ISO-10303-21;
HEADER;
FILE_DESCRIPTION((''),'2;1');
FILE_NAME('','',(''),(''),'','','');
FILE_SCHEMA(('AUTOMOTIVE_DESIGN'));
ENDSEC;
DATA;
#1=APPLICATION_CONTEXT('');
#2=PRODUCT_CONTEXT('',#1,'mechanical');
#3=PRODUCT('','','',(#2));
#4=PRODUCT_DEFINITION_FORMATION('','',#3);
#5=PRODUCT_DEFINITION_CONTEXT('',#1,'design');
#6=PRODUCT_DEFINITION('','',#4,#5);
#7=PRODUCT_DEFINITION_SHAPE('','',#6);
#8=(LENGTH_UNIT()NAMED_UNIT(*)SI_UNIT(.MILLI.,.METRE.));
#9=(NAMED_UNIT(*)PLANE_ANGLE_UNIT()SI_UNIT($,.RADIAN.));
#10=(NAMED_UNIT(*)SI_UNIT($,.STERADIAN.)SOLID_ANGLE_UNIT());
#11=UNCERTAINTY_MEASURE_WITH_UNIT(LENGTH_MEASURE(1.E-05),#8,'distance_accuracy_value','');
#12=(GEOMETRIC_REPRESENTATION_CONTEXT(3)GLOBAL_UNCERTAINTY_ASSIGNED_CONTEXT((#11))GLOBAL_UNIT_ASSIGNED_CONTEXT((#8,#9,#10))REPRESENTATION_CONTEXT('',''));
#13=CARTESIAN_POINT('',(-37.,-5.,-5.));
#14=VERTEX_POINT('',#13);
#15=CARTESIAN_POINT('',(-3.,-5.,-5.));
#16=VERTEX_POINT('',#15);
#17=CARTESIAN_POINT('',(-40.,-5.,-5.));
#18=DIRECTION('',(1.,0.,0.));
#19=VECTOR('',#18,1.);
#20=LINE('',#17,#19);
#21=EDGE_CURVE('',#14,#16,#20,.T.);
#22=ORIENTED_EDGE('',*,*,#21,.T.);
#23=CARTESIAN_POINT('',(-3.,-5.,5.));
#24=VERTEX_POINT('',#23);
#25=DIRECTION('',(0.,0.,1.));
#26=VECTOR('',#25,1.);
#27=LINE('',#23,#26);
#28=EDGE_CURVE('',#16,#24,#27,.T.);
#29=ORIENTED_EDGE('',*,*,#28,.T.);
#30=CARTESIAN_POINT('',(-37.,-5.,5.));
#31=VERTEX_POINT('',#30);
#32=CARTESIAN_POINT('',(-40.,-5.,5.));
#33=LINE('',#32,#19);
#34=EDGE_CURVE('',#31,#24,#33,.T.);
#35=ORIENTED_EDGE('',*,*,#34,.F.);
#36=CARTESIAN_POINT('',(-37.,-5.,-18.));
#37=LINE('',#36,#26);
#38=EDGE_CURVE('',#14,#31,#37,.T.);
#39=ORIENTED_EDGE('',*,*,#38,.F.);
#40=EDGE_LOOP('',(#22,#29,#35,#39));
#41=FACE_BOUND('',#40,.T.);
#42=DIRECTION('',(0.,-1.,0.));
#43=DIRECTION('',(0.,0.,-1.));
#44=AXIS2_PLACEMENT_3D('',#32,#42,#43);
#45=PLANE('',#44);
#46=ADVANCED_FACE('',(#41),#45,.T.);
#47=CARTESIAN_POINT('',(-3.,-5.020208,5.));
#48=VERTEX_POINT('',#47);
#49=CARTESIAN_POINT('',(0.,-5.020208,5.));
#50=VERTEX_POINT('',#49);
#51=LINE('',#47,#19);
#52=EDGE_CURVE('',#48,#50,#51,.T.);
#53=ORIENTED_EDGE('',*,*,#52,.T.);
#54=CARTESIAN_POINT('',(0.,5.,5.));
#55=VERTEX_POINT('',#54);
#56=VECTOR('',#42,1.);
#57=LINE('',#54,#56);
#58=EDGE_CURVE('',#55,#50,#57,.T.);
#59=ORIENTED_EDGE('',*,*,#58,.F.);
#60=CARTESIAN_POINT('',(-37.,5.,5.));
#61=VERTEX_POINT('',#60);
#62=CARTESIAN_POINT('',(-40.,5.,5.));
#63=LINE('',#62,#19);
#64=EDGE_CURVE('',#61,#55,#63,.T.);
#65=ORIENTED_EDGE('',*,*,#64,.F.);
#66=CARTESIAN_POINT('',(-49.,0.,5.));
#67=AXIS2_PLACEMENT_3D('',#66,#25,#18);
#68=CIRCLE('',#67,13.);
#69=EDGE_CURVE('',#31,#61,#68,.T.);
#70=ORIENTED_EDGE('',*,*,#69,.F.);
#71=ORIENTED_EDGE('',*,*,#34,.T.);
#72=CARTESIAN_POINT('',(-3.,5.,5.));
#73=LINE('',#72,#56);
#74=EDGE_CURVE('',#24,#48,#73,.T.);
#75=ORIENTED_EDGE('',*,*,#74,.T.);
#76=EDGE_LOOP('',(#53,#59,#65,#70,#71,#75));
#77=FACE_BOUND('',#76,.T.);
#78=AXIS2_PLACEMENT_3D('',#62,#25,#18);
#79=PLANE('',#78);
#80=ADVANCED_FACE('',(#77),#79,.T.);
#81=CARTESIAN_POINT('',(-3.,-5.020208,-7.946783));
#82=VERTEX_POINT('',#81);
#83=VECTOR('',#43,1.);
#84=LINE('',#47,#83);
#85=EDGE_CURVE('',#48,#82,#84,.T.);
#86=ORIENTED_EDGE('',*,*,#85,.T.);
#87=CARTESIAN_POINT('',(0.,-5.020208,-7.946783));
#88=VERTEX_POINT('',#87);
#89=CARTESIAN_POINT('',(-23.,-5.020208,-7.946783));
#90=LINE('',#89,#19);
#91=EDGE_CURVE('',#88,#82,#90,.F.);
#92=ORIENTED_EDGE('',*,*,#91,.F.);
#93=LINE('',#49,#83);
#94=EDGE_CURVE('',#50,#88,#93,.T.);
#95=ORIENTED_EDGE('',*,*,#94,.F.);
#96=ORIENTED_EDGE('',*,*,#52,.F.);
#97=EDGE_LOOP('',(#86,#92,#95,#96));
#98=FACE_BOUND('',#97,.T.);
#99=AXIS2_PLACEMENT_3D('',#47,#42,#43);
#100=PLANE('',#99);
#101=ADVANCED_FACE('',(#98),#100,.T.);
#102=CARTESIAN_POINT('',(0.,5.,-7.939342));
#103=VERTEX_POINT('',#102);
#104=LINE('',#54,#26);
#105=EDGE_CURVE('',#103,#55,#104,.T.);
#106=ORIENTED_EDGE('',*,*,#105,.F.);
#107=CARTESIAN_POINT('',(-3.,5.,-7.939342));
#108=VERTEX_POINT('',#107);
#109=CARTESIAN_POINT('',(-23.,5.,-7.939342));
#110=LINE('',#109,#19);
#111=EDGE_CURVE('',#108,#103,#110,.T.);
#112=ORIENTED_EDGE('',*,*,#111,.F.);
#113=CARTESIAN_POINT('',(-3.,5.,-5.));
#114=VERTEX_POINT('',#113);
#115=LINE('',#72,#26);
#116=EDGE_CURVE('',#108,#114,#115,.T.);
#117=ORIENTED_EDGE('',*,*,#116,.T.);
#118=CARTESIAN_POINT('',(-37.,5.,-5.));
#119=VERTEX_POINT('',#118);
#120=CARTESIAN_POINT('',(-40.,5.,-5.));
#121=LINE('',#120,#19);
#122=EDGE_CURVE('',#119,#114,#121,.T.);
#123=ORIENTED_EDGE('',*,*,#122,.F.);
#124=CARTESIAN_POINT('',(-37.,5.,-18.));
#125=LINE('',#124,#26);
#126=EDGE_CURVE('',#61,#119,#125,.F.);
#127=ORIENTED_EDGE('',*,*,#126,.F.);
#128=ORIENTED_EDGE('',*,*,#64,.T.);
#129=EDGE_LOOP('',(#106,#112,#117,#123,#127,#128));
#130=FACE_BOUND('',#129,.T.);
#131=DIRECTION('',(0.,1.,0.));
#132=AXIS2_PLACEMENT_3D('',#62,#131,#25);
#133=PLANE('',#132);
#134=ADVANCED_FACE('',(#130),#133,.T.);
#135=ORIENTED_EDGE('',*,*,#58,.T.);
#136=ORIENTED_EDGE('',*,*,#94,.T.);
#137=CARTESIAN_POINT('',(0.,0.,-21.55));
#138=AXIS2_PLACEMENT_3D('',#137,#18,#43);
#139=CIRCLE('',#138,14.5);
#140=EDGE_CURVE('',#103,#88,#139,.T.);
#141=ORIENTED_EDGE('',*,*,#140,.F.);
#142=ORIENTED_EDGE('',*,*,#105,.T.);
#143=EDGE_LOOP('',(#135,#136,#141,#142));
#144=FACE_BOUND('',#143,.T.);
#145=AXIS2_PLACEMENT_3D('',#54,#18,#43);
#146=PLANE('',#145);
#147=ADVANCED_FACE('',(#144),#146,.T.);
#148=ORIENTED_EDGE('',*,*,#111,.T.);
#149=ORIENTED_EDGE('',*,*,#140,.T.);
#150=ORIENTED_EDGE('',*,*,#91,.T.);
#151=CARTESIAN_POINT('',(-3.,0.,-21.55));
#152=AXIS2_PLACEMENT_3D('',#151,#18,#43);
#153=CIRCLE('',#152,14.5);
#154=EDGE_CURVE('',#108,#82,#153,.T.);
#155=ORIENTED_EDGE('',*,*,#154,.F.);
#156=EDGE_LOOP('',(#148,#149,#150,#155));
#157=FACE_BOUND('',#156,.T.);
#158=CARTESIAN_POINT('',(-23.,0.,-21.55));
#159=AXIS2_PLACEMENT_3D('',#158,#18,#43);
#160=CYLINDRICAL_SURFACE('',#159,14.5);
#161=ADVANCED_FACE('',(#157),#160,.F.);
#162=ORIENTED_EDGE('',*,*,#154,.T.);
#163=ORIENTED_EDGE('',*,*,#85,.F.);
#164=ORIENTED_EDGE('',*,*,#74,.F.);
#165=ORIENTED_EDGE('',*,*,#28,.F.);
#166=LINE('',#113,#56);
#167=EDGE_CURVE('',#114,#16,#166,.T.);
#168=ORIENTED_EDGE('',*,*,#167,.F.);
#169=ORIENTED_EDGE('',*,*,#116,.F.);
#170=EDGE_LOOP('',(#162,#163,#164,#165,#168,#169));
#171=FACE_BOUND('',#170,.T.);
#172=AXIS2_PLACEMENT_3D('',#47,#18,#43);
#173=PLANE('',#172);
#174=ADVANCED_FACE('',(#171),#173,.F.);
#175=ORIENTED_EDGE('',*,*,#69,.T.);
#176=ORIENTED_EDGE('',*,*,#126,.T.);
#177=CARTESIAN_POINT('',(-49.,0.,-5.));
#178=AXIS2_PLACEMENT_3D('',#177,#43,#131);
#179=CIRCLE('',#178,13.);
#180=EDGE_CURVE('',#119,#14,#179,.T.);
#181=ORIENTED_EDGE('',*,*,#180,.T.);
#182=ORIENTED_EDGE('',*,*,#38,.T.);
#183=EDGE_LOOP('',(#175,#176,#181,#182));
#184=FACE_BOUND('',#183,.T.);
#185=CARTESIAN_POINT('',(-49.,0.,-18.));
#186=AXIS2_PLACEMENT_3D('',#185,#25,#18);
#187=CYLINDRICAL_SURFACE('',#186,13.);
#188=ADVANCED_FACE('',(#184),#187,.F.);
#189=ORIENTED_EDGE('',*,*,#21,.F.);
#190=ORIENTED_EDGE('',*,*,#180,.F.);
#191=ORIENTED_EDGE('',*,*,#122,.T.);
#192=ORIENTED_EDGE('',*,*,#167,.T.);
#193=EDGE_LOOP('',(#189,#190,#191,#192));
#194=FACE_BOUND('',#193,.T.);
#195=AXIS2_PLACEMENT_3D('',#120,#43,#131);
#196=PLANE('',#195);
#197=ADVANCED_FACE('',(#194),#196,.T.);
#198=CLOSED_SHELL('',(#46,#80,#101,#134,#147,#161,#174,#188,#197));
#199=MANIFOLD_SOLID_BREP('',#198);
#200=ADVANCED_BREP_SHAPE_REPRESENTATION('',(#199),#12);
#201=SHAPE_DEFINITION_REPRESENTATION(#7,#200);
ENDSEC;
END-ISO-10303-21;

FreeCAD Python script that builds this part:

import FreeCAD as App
import Part
import Sketcher

V = App.Vector
Q = App.Units.Quantity


def add_polygon(sketch, points):
    """Adds a closed chain of lines whose ends are joined by coincident constraints."""
    first, n = sketch.GeometryCount, len(points)
    for a, b in zip(points, points[1:] + points[:1]):
        sketch.addGeometry(Part.LineSegment(App.Vector(*a, 0), App.Vector(*b, 0)), False)
    for i in range(n):
        sketch.addConstraint(Sketcher.Constraint("Coincident", first + i, 2, first + (i + 1) % n, 1))

doc = App.newDocument("Part")
body = doc.addObject("PartDesign::Body", "Body")

sketch1 = doc.addObject("Sketcher::SketchObject", "Sketch")
body.addObject(sketch1)
sketch1.AttachmentSupport = (doc.YZ_Plane, [""])
sketch1.MapMode = "FlatFace"
add_polygon(sketch1, [(5, 5), (-5, 5), (-5, -5), (5, -5)])
sketch1.addConstraint([
    Sketcher.Constraint("Horizontal", 0),
    Sketcher.Constraint("Vertical", 1),
    Sketcher.Constraint("Horizontal", 2),
    Sketcher.Constraint("Vertical", 3),
    Sketcher.Constraint("Symmetric", 0, 2, 2, 2, -1, 1),
    Sketcher.Constraint("Equal", 2, 1),
    Sketcher.Constraint("DistanceX", 0, 2, 0, 1, Q("10 mm")),
])
pad1 = doc.addObject("PartDesign::Pad", "Pad")
body.addObject(pad1)
pad1.Profile = sketch1
pad1.Length = 40
pad1.Reversed = True

sketch2 = doc.addObject("Sketcher::SketchObject", "Sketch001")
body.addObject(sketch2)
sketch2.AttachmentSupport = (doc.YZ_Plane, [""])
sketch2.MapMode = "FlatFace"
add_polygon(sketch2, [(5, 5), (-5, 5), (-5, -9), (5, -9)])
sketch2.addConstraint([
    Sketcher.Constraint("Horizontal", 0),
    Sketcher.Constraint("Vertical", 1),
    Sketcher.Constraint("Horizontal", 2),
    Sketcher.Constraint("Vertical", 3),
    Sketcher.Constraint("DistanceY", -1, 1, 0, 2, Q("5 mm")),
    Sketcher.Constraint("DistanceX", -1, 1, 2, 2, Q("5 mm")),
    Sketcher.Constraint("DistanceX", 0, 2, 0, 1, Q("10.020208 mm")),
    Sketcher.Constraint("DistanceY", 1, 2, 1, 1, Q("14.229592 mm")),
])
pad2 = doc.addObject("PartDesign::Pad", "Pad001")
body.addObject(pad2)
pad2.Profile = sketch2
pad2.Length = 3
pad2.Reversed = True

sketch3 = doc.addObject("Sketcher::SketchObject", "Sketch002")
body.addObject(sketch3)
sketch3.AttachmentSupport = (doc.YZ_Plane, [""])
sketch3.MapMode = "FlatFace"
sketch3.addGeometry(Part.Circle(V(0, -22, 0), V(0, 0, 1), 14), False)
sketch3.addConstraint([
    Sketcher.Constraint("PointOnObject", 0, 3, -2),
    Sketcher.Constraint("Diameter", 0, Q("29 mm")),
    Sketcher.Constraint("DistanceY", 0, 3, -1, 1, Q("21.55 mm")),
])
pocket1 = doc.addObject("PartDesign::Pocket", "Pocket")
body.addObject(pocket1)
pocket1.Profile = sketch3
pocket1.Length = 23

sketch4 = doc.addObject("Sketcher::SketchObject", "Sketch003")
body.addObject(sketch4)
sketch4.AttachmentSupport = (doc.XY_Plane, [""])
sketch4.MapMode = "FlatFace"
sketch4.AttachmentOffset = App.Placement(V(0, 0, 5), App.Rotation())
sketch4.addGeometry(Part.Circle(V(-49, 0, 0), V(0, 0, 1), 13), False)
sketch4.addConstraint([
    Sketcher.Constraint("PointOnObject", 0, 3, -1),
    Sketcher.Constraint("Diameter", 0, Q("26 mm")),
    Sketcher.Constraint("DistanceX", 0, 3, -1, 1, Q("49 mm")),
])
pocket2 = doc.addObject("PartDesign::Pocket", "Pocket001")
body.addObject(pocket2)
pocket2.Profile = sketch4
pocket2.Length = 23

doc.recompute()
